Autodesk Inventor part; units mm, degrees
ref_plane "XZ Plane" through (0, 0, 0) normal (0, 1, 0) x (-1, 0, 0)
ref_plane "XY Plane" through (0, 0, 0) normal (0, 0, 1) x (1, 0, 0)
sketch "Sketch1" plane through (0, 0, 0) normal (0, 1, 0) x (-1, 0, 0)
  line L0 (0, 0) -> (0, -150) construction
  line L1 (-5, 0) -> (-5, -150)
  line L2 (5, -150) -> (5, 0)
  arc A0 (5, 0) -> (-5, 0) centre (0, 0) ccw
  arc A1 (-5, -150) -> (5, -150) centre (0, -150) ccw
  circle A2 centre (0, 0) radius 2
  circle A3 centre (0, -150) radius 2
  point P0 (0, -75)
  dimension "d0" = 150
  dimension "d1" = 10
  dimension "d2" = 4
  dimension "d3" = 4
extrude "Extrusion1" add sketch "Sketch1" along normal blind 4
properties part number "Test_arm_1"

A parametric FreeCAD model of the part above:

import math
import FreeCAD as App
import Part
import Sketcher
from FreeCAD import Vector

doc = App.newDocument("Part")
params = doc.addObject("Spreadsheet::Sheet", "Params")
for row, (alias, value) in enumerate([
    ("sketch1_diameter", "4 mm"),
    ("sketch1_radius", "5 mm"),
    ("sketch1_height", "150 mm"),
    ("pad1_length", "4 mm"),
], start=1):
    params.set(f"A{row}", alias)
    params.set(f"B{row}", "=" + value)
    params.setAlias(f"B{row}", alias)

body = doc.addObject("PartDesign::Body", "Body")

sketch1 = body.newObject("Sketcher::SketchObject", "Sketch")
sketch1.AttachmentSupport = (doc.getObject("XZ_Plane"), [""])
sketch1.MapMode = "FlatFace"
sketch1.addGeometry([
    Part.ArcOfCircle(Part.Circle(Vector(0, 0, 0), Vector(0, 0, 1), 5), math.radians(0), math.radians(180)),
    Part.LineSegment(Vector(5, 0, 0), Vector(5, -150, 0)),
    Part.ArcOfCircle(Part.Circle(Vector(0, -150, 0), Vector(0, 0, 1), 5), math.radians(180), math.radians(360)),
    Part.LineSegment(Vector(-5, -150, 0), Vector(-5, 0, 0)),
    Part.Circle(Vector(0, -150, 0), Vector(0, 0, 1), 2),
    Part.Circle(Vector(0, 0, 0), Vector(0, 0, 1), 2),
], False)
sketch1.addConstraint([
    Sketcher.Constraint("Tangent", 0, 1, 1, 1),
    Sketcher.Constraint("Tangent", 1, 2, 2, 2),
    Sketcher.Constraint("Tangent", 2, 1, 3, 1),
    Sketcher.Constraint("Tangent", 3, 2, 0, 2),
    Sketcher.Constraint("Vertical", 1),
    Sketcher.Constraint("Vertical", 3),
    Sketcher.Constraint("Coincident", 0, 3, -1, 1),
    Sketcher.Constraint("Coincident", 5, 3, -1, 1),
    Sketcher.Constraint("Coincident", 4, 3, 2, 3),
    Sketcher.Constraint("Equal", 4, 5),
    Sketcher.Constraint("Diameter", 4, 4.0),
    Sketcher.Constraint("Radius", 0, 5.0),
    Sketcher.Constraint("DistanceY", 1, 2, 1, 1, 150.0),
])
sketch1.setExpression("Constraints[10]", "Params.sketch1_diameter")
sketch1.setExpression("Constraints[11]", "Params.sketch1_radius")
sketch1.setExpression("Constraints[12]", "Params.sketch1_height")
pad1 = body.newObject("PartDesign::Pad", "Pad")
pad1.Profile = sketch1
pad1.setExpression("Length", "Params.pad1_length")
pad1.Reversed = True

doc.recompute()
